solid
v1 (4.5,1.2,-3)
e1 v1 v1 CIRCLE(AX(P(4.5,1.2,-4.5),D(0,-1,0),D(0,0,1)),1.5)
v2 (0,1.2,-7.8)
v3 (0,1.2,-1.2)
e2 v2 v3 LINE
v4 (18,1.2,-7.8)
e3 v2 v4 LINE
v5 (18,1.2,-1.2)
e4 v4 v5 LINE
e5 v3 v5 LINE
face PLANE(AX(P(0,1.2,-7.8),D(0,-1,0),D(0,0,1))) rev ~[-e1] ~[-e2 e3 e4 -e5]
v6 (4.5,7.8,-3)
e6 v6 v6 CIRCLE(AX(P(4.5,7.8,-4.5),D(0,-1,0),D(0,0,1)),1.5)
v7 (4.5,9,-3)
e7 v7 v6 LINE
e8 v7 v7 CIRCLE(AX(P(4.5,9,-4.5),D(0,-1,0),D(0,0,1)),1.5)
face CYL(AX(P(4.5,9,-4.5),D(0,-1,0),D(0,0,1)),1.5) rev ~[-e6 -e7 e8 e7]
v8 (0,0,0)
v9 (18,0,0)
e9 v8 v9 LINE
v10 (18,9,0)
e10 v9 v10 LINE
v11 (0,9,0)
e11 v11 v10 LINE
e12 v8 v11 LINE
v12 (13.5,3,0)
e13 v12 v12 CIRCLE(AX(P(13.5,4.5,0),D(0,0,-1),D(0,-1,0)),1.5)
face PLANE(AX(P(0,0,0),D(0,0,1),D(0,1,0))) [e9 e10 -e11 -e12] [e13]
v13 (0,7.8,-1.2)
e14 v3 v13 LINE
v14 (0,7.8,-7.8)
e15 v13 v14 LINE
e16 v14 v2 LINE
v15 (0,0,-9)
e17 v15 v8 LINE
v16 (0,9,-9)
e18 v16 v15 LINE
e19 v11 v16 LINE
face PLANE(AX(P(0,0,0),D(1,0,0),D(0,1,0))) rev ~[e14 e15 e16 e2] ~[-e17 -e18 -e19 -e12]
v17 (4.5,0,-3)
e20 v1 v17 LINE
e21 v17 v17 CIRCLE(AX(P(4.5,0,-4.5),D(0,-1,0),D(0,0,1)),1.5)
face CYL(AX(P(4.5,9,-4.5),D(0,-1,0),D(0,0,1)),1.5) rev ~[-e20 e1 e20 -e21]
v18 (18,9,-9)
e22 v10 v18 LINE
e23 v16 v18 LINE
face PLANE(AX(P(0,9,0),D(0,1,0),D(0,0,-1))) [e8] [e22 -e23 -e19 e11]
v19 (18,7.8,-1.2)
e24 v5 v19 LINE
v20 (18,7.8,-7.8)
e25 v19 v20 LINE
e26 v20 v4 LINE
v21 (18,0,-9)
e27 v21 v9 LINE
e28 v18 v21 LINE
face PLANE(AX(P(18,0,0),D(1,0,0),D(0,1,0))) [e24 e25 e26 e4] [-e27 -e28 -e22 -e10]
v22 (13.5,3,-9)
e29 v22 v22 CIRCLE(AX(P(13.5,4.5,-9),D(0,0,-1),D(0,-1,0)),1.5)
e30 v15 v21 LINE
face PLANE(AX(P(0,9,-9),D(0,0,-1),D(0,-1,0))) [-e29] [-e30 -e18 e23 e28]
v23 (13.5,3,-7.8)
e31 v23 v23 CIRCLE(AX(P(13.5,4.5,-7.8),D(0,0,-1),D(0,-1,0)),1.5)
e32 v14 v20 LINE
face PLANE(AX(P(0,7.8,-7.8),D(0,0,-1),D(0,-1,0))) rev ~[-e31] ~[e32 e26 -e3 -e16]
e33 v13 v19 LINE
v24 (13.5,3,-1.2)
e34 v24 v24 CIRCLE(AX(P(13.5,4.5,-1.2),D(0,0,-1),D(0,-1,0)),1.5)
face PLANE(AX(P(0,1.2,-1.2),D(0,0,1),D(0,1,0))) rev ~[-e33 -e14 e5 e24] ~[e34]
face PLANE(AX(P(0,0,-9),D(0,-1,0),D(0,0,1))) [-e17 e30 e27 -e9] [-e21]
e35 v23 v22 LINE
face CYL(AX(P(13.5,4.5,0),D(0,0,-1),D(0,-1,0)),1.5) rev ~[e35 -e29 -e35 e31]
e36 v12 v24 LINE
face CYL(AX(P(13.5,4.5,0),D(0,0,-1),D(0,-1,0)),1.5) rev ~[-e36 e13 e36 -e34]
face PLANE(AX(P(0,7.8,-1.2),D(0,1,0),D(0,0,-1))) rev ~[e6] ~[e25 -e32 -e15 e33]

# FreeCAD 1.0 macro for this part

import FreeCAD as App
import Part
import Sketcher
Q = App.Units.Quantity

doc = App.newDocument("Part")
body = doc.addObject("PartDesign::Body", "Body")

# Sketch on YZ plane
sketch1 = body.newObject("Sketcher::SketchObject", "Sketch")
sketch1.AttachmentSupport = (doc.getObject("YZ_Plane"), [""])
sketch1.MapMode = "FlatFace"
sketch1.addGeometry(Part.LineSegment(App.Vector(9, 0, 0), App.Vector(0, 0, 0)), False)
sketch1.addGeometry(Part.LineSegment(App.Vector(0, 0, 0), App.Vector(0, -9, 0)), False)
sketch1.addGeometry(Part.LineSegment(App.Vector(0, -9, 0), App.Vector(9, -9, 0)), False)
sketch1.addGeometry(Part.LineSegment(App.Vector(9, -9, 0), App.Vector(9, 0, 0)), False)
sketch1.addGeometry(Part.LineSegment(App.Vector(1, -8, 0), App.Vector(1, -1, 0)), False)
sketch1.addGeometry(Part.LineSegment(App.Vector(1, -1, 0), App.Vector(8, -1, 0)), False)
sketch1.addGeometry(Part.LineSegment(App.Vector(8, -1, 0), App.Vector(8, -8, 0)), False)
sketch1.addGeometry(Part.LineSegment(App.Vector(8, -8, 0), App.Vector(1, -8, 0)), False)
sketch1.addConstraint(Sketcher.Constraint("Coincident", 0, 2, 1, 1))
sketch1.addConstraint(Sketcher.Constraint("Coincident", 1, 2, 2, 1))
sketch1.addConstraint(Sketcher.Constraint("Coincident", 2, 2, 3, 1))
sketch1.addConstraint(Sketcher.Constraint("Coincident", 3, 2, 0, 1))
sketch1.addConstraint(Sketcher.Constraint("Coincident", 4, 2, 5, 1))
sketch1.addConstraint(Sketcher.Constraint("Coincident", 5, 2, 6, 1))
sketch1.addConstraint(Sketcher.Constraint("Coincident", 6, 2, 7, 1))
sketch1.addConstraint(Sketcher.Constraint("Coincident", 7, 2, 4, 1))
sketch1.addConstraint(Sketcher.Constraint("Horizontal", 0))
sketch1.addConstraint(Sketcher.Constraint("Vertical", 1))
sketch1.addConstraint(Sketcher.Constraint("Horizontal", 2))
sketch1.addConstraint(Sketcher.Constraint("Vertical", 3))
sketch1.addConstraint(Sketcher.Constraint("Vertical", 4))
sketch1.addConstraint(Sketcher.Constraint("Horizontal", 5))
sketch1.addConstraint(Sketcher.Constraint("Vertical", 6))
sketch1.addConstraint(Sketcher.Constraint("Horizontal", 7))
sketch1.addConstraint(Sketcher.Constraint("Coincident", 0, 2, -1, 1))
sketch1.addConstraint(Sketcher.Constraint("Equal", 2, 1))
sketch1.addConstraint(Sketcher.Constraint("Equal", 7, 4))
sketch1.addConstraint(Sketcher.Constraint("DistanceX", 0, 2, 0, 1, Q("9 mm")))
sketch1.addConstraint(Sketcher.Constraint("DistanceX", -1, 1, 4, 2, Q("1.2 mm")))
sketch1.addConstraint(Sketcher.Constraint("DistanceY", 4, 2, -1, 1, Q("1.2 mm")))
sketch1.addConstraint(Sketcher.Constraint("DistanceX", 5, 2, 3, 2, Q("1.2 mm")))
pad1 = body.newObject("PartDesign::Pad", "Pad")
pad1.Profile = sketch1
pad1.Length = 18

# Sketch on XZ plane
sketch2 = body.newObject("Sketcher::SketchObject", "Sketch001")
sketch2.AttachmentSupport = (doc.getObject("XZ_Plane"), [""])
sketch2.MapMode = "FlatFace"
sketch2.AttachmentOffset = App.Placement(App.Vector(0, 0, -9), App.Rotation())
sketch2.addGeometry(Part.Circle(App.Vector(4.5, -4.5, 0), App.Vector(0, 0, 1), 1.5), False)
sketch2.addConstraint(Sketcher.Constraint("Diameter", 0, Q("3 mm")))
sketch2.addConstraint(Sketcher.Constraint("DistanceX", -1, 1, 0, 3, Q("4.5 mm")))
sketch2.addConstraint(Sketcher.Constraint("DistanceY", 0, 3, -1, 1, Q("4.5 mm")))
doc.recompute()
hole = body.newObject("PartDesign::Hole", "Hole")
hole.Profile = sketch2
hole.ThreadType = "None"
hole.Diameter = 3
hole.DepthType = "ThroughAll"
hole.Reversed = True

# Sketch on XY plane
sketch3 = body.newObject("Sketcher::SketchObject", "Sketch002")
sketch3.AttachmentSupport = (doc.getObject("XY_Plane"), [""])
sketch3.MapMode = "FlatFace"
sketch3.addGeometry(Part.Circle(App.Vector(13.5, 4.5, 0), App.Vector(0, 0, 1), 1.5), False)
sketch3.addConstraint(Sketcher.Constraint("Diameter", 0, Q("3 mm")))
sketch3.addConstraint(Sketcher.Constraint("DistanceX", -1, 1, 0, 3, Q("13.5 mm")))
sketch3.addConstraint(Sketcher.Constraint("DistanceY", -1, 1, 0, 3, Q("4.5 mm")))
doc.recompute()
hole2 = body.newObject("PartDesign::Hole", "Hole001")
hole2.Profile = sketch3
hole2.ThreadType = "None"
hole2.Diameter = 3
hole2.DepthType = "ThroughAll"

doc.recompute()
